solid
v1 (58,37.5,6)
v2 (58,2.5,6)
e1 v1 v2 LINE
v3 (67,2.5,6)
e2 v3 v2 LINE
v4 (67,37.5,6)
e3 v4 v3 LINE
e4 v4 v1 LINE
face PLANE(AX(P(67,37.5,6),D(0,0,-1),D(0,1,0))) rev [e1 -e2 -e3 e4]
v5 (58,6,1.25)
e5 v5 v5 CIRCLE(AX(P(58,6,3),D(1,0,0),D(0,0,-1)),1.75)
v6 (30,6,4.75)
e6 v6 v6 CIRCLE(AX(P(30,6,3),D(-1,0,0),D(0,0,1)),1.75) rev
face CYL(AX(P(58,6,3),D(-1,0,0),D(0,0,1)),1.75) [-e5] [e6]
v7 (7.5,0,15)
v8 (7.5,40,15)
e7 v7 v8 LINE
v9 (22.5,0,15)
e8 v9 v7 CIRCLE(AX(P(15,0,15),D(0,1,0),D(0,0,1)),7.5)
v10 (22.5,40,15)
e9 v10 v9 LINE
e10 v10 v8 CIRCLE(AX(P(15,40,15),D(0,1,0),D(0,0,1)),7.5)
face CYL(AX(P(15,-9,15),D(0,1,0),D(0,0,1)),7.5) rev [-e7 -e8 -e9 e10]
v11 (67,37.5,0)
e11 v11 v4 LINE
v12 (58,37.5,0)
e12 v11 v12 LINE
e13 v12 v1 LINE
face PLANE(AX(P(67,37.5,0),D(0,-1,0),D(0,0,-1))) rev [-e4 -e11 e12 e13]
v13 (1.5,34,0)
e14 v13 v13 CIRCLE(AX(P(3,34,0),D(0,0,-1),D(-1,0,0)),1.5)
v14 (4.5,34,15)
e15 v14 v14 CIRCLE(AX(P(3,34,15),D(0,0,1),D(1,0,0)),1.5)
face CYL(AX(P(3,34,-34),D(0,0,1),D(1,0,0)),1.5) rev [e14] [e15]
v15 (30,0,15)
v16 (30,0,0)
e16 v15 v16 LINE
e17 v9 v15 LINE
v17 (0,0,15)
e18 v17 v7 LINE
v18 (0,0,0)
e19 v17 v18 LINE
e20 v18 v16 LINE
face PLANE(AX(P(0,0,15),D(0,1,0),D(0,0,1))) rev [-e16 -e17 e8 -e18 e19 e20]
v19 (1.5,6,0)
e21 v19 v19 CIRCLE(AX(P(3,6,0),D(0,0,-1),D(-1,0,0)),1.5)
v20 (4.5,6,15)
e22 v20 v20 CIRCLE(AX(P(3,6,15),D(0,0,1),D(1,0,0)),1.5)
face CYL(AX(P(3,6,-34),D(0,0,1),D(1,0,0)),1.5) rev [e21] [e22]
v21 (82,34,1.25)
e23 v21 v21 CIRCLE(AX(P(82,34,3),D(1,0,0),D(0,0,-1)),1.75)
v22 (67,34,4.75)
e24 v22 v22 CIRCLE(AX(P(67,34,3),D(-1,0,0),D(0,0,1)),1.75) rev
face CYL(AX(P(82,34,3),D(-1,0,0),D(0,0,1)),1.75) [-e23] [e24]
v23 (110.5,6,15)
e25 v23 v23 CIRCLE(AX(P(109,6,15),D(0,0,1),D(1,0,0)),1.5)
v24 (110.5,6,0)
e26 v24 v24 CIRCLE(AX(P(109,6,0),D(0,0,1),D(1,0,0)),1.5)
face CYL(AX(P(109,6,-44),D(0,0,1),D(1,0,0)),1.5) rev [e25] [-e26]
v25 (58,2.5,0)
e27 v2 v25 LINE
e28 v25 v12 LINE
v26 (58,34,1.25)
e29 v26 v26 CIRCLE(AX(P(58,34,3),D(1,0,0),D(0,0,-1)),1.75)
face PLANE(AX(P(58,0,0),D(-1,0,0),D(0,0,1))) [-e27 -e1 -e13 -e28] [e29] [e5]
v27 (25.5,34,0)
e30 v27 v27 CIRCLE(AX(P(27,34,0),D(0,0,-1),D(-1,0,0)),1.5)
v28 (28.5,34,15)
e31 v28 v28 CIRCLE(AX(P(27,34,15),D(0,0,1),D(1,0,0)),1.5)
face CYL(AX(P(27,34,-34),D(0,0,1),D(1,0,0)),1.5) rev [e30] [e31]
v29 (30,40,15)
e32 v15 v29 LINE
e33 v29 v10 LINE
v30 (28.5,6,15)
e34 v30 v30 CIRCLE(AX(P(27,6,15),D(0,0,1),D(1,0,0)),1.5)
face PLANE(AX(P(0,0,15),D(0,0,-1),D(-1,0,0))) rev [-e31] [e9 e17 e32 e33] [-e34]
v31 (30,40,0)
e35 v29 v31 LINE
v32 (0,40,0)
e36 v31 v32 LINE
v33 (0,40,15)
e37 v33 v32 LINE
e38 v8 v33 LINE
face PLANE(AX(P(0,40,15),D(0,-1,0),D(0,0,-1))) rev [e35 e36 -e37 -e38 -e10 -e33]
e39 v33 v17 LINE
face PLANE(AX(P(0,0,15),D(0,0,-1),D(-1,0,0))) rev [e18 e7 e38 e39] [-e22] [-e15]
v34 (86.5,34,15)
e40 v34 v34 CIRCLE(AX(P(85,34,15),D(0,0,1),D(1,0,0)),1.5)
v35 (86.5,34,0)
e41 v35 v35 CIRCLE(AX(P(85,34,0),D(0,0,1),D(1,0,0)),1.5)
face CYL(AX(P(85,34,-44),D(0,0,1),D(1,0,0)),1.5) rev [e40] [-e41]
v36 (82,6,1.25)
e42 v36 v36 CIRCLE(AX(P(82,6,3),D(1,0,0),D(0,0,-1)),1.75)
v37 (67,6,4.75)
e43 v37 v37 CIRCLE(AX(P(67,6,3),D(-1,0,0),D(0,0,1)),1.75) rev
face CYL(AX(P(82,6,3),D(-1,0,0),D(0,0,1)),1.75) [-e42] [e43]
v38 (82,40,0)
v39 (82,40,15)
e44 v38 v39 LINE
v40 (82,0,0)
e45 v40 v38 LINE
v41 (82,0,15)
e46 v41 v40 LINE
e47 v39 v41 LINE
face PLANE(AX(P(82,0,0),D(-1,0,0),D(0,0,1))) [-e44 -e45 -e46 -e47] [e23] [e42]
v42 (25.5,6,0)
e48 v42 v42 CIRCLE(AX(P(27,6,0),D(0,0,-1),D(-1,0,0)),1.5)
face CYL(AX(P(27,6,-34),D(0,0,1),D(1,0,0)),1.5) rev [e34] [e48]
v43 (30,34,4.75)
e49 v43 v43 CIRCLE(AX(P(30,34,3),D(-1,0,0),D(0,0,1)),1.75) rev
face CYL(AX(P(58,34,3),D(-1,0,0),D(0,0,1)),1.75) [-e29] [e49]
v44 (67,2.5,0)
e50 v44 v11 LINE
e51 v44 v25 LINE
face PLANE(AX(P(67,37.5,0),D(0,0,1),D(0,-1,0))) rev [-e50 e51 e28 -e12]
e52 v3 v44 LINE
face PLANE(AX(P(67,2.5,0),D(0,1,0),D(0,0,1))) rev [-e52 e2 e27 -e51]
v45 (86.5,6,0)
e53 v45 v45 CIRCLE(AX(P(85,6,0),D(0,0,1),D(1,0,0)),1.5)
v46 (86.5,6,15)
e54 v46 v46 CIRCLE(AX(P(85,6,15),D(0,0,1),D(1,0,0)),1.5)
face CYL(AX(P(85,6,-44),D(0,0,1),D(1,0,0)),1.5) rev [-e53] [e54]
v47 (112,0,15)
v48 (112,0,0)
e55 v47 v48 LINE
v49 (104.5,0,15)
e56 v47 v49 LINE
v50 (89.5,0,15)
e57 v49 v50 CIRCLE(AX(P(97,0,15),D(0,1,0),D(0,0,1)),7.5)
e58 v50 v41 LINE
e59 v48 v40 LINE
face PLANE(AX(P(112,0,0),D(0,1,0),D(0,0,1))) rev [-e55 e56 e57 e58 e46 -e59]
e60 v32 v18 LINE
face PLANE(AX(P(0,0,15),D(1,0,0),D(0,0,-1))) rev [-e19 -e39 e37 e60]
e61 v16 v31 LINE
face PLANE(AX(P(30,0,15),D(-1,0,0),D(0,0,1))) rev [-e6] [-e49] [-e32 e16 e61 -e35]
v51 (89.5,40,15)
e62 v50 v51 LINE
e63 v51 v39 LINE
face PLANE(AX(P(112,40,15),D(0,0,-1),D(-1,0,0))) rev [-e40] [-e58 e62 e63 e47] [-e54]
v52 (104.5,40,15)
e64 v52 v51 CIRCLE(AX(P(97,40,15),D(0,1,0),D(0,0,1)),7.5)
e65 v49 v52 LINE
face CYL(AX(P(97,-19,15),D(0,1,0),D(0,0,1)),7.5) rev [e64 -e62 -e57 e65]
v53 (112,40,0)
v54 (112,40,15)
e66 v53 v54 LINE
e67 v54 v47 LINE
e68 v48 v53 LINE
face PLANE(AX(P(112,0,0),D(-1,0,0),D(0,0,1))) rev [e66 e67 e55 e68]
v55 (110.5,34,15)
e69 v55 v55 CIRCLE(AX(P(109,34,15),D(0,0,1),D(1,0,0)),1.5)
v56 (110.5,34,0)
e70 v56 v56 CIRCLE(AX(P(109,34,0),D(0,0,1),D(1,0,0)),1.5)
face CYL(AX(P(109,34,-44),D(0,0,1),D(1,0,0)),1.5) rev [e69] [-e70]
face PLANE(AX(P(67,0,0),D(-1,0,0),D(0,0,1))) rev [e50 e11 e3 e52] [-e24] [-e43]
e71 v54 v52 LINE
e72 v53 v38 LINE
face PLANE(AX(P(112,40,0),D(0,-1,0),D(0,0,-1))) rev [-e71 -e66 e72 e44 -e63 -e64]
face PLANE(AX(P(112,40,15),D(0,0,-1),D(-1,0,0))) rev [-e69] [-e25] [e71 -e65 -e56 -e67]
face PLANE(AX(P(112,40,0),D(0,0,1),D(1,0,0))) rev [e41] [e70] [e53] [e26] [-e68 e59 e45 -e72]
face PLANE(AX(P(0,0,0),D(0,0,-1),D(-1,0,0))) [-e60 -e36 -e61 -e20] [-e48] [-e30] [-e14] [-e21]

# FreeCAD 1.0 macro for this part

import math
import FreeCAD as App
import Part
import Sketcher
from FreeCAD import Vector
Q = App.Units.Quantity

doc = App.newDocument("Part")
body = doc.addObject("PartDesign::Body", "Body")

sketch1 = body.newObject("Sketcher::SketchObject", "Sketch")
sketch1.AttachmentSupport = (doc.getObject("XY_Plane"), [""])
sketch1.MapMode = "FlatFace"
sketch1.addGeometry(Part.LineSegment(Vector(0, 40, 0), Vector(0, 0, 0)), False)
sketch1.addGeometry(Part.LineSegment(Vector(0, 0, 0), Vector(30, 0, 0)), False)
sketch1.addGeometry(Part.LineSegment(Vector(30, 0, 0), Vector(30, 40, 0)), False)
sketch1.addGeometry(Part.LineSegment(Vector(30, 40, 0), Vector(0, 40, 0)), False)
sketch1.addConstraint(Sketcher.Constraint("Coincident", 0, 2, 1, 1))
sketch1.addConstraint(Sketcher.Constraint("Coincident", 1, 2, 2, 1))
sketch1.addConstraint(Sketcher.Constraint("Coincident", 2, 2, 3, 1))
sketch1.addConstraint(Sketcher.Constraint("Coincident", 3, 2, 0, 1))
sketch1.addConstraint(Sketcher.Constraint("Vertical", 0))
sketch1.addConstraint(Sketcher.Constraint("Horizontal", 1))
sketch1.addConstraint(Sketcher.Constraint("Vertical", 2))
sketch1.addConstraint(Sketcher.Constraint("Horizontal", 3))
sketch1.addConstraint(Sketcher.Constraint("Coincident", 0, 2, -1, 1))
sketch1.addConstraint(Sketcher.Constraint("DistanceX", 1, 1, 1, 2, Q("30 mm")))
sketch1.addConstraint(Sketcher.Constraint("DistanceY", 0, 2, 0, 1, Q("40 mm")))
pad1 = body.newObject("PartDesign::Pad", "Pad")
pad1.Profile = sketch1
pad1.Length = 15

sketch2 = body.newObject("Sketcher::SketchObject", "Sketch001")
sketch2.AttachmentSupport = (doc.getObject("XZ_Plane"), [""])
sketch2.MapMode = "FlatFace"
sketch2.AttachmentOffset = App.Placement(Vector(0, 0, -40), App.Rotation())
sketch2.addGeometry(Part.LineSegment(Vector(8, 15, 0), Vector(22, 15, 0)), False)
sketch2.addGeometry(Part.ArcOfCircle(Part.Circle(Vector(15, 15, 0), Vector(0, 0, 1), 8), math.radians(180), math.radians(360)), False)
sketch2.addConstraint(Sketcher.Constraint("Coincident", 0, 1, 1, 1))
sketch2.addConstraint(Sketcher.Constraint("Coincident", 1, 2, 0, 2))
sketch2.addConstraint(Sketcher.Constraint("Horizontal", 0))
sketch2.addConstraint(Sketcher.Constraint("Horizontal", 1, 3, 0, 1))
sketch2.addConstraint(Sketcher.Constraint("Radius", 1, Q("7.5 mm")))
sketch2.addConstraint(Sketcher.Constraint("DistanceX", -1, 1, 1, 3, Q("15 mm")))
sketch2.addConstraint(Sketcher.Constraint("DistanceY", -1, 1, 1, 3, Q("15 mm")))
pocket1 = body.newObject("PartDesign::Pocket", "Pocket")
pocket1.Profile = sketch2
pocket1.Length = 49
pocket1.Reversed = True

sketch3 = body.newObject("Sketcher::SketchObject", "Sketch002")
sketch3.AttachmentSupport = (doc.getObject("XY_Plane"), [""])
sketch3.MapMode = "FlatFace"
sketch3.AttachmentOffset = App.Placement(Vector(0, 0, 15), App.Rotation())
sketch3.addGeometry(Part.Circle(Vector(3, 34, 0), Vector(0, 0, 1), 1.5), False)
sketch3.addGeometry(Part.Circle(Vector(3, 6, 0), Vector(0, 0, 1), 1.5), False)
sketch3.addGeometry(Part.Circle(Vector(27, 34, 0), Vector(0, 0, 1), 1.5), False)
sketch3.addGeometry(Part.Circle(Vector(27, 6, 0), Vector(0, 0, 1), 1.5), False)
sketch3.addConstraint(Sketcher.Constraint("Equal", 0, 1))
sketch3.addConstraint(Sketcher.Constraint("Equal", 1, 2))
sketch3.addConstraint(Sketcher.Constraint("Equal", 2, 3))
sketch3.addConstraint(Sketcher.Constraint("Horizontal", 0, 3, 2, 3))
sketch3.addConstraint(Sketcher.Constraint("Horizontal", 1, 3, 3, 3))
sketch3.addConstraint(Sketcher.Constraint("Vertical", 0, 3, 1, 3))
sketch3.addConstraint(Sketcher.Constraint("Vertical", 2, 3, 3, 3))
sketch3.addConstraint(Sketcher.Constraint("Diameter", 0, Q("3 mm")))
sketch3.addConstraint(Sketcher.Constraint("DistanceX", -1, 1, 0, 3, Q("3 mm")))
sketch3.addConstraint(Sketcher.Constraint("DistanceY", -1, 1, 0, 3, Q("34 mm")))
sketch3.addConstraint(Sketcher.Constraint("DistanceY", -1, 1, 1, 3, Q("6 mm")))
sketch3.addConstraint(Sketcher.Constraint("DistanceX", -1, 1, 2, 3, Q("27 mm")))
pocket2 = body.newObject("PartDesign::Pocket", "Pocket001")
pocket2.Profile = sketch3
pocket2.Length = 49

sketch4 = body.newObject("Sketcher::SketchObject", "Sketch003")
sketch4.AttachmentSupport = (doc.getObject("YZ_Plane"), [""])
sketch4.MapMode = "FlatFace"
sketch4.AttachmentOffset = App.Placement(Vector(0, 0, 30), App.Rotation())
sketch4.addGeometry(Part.Circle(Vector(34, 3, 0), Vector(0, 0, 1), 1.8), False)
sketch4.addGeometry(Part.Circle(Vector(6, 3, 0), Vector(0, 0, 1), 1.8), False)
sketch4.addConstraint(Sketcher.Constraint("Equal", 0, 1))
sketch4.addConstraint(Sketcher.Constraint("Horizontal", 0, 3, 1, 3))
sketch4.addConstraint(Sketcher.Constraint("Diameter", 0, Q("3.5 mm")))
sketch4.addConstraint(Sketcher.Constraint("DistanceX", -1, 1, 0, 3, Q("34 mm")))
sketch4.addConstraint(Sketcher.Constraint("DistanceY", -1, 1, 0, 3, Q("3 mm")))
sketch4.addConstraint(Sketcher.Constraint("DistanceX", -1, 1, 1, 3, Q("6 mm")))
pad2 = body.newObject("PartDesign::Pad", "Pad001")
pad2.Profile = sketch4
pad2.Length = 28

sketch5 = body.newObject("Sketcher::SketchObject", "Sketch004")
sketch5.AttachmentSupport = (doc.getObject("YZ_Plane"), [""])
sketch5.MapMode = "FlatFace"
sketch5.AttachmentOffset = App.Placement(Vector(0, 0, 58), App.Rotation())
sketch5.addGeometry(Part.LineSegment(Vector(38, 6, 0), Vector(2, 6, 0)), False)
sketch5.addGeometry(Part.LineSegment(Vector(2, 6, 0), Vector(2, 0, 0)), False)
sketch5.addGeometry(Part.LineSegment(Vector(2, 0, 0), Vector(38, 0, 0)), False)
sketch5.addGeometry(Part.LineSegment(Vector(38, 0, 0), Vector(38, 6, 0)), False)
sketch5.addConstraint(Sketcher.Constraint("Coincident", 0, 2, 1, 1))
sketch5.addConstraint(Sketcher.Constraint("Coincident", 1, 2, 2, 1))
sketch5.addConstraint(Sketcher.Constraint("Coincident", 2, 2, 3, 1))
sketch5.addConstraint(Sketcher.Constraint("Coincident", 3, 2, 0, 1))
sketch5.addConstraint(Sketcher.Constraint("Horizontal", 0))
sketch5.addConstraint(Sketcher.Constraint("Vertical", 1))
sketch5.addConstraint(Sketcher.Constraint("Horizontal", 2))
sketch5.addConstraint(Sketcher.Constraint("Vertical", 3))
sketch5.addConstraint(Sketcher.Constraint("PointOnObject", 1, 2, -1))
sketch5.addConstraint(Sketcher.Constraint("DistanceX", 0, 2, 0, 1, Q("35 mm")))
sketch5.addConstraint(Sketcher.Constraint("DistanceY", 1, 2, 1, 1, Q("6 mm")))
sketch5.addConstraint(Sketcher.Constraint("DistanceX", -1, 1, 0, 2, Q("2.5 mm")))
pad3 = body.newObject("PartDesign::Pad", "Pad002")
pad3.Profile = sketch5
pad3.Length = 9

sketch6 = body.newObject("Sketcher::SketchObject", "Sketch005")
sketch6.AttachmentSupport = (doc.getObject("YZ_Plane"), [""])
sketch6.MapMode = "FlatFace"
sketch6.AttachmentOffset = App.Placement(Vector(0, 0, 67), App.Rotation())
sketch6.addGeometry(Part.Circle(Vector(34, 3, 0), Vector(0, 0, 1), 1.8), False)
sketch6.addGeometry(Part.Circle(Vector(6, 3, 0), Vector(0, 0, 1), 1.8), False)
sketch6.addConstraint(Sketcher.Constraint("Equal", 0, 1))
sketch6.addConstraint(Sketcher.Constraint("Horizontal", 0, 3, 1, 3))
sketch6.addConstraint(Sketcher.Constraint("Diameter", 0, Q("3.5 mm")))
sketch6.addConstraint(Sketcher.Constraint("DistanceX", -1, 1, 0, 3, Q("34 mm")))
sketch6.addConstraint(Sketcher.Constraint("DistanceY", -1, 1, 0, 3, Q("3 mm")))
sketch6.addConstraint(Sketcher.Constraint("DistanceX", -1, 1, 1, 3, Q("6 mm")))
pad4 = body.newObject("PartDesign::Pad", "Pad003")
pad4.Profile = sketch6
pad4.Length = 15

sketch7 = body.newObject("Sketcher::SketchObject", "Sketch006")
sketch7.AttachmentSupport = (doc.getObject("YZ_Plane"), [""])
sketch7.MapMode = "FlatFace"
sketch7.AttachmentOffset = App.Placement(Vector(0, 0, 82), App.Rotation())
sketch7.addGeometry(Part.LineSegment(Vector(40, 15, 0), Vector(0, 15, 0)), False)
sketch7.addGeometry(Part.LineSegment(Vector(0, 15, 0), Vector(0, 0, 0)), False)
sketch7.addGeometry(Part.LineSegment(Vector(0, 0, 0), Vector(40, 0, 0)), False)
sketch7.addGeometry(Part.LineSegment(Vector(40, 0, 0), Vector(40, 15, 0)), False)
sketch7.addConstraint(Sketcher.Constraint("Coincident", 0, 2, 1, 1))
sketch7.addConstraint(Sketcher.Constraint("Coincident", 1, 2, 2, 1))
sketch7.addConstraint(Sketcher.Constraint("Coincident", 2, 2, 3, 1))
sketch7.addConstraint(Sketcher.Constraint("Coincident", 3, 2, 0, 1))
sketch7.addConstraint(Sketcher.Constraint("Horizontal", 0))
sketch7.addConstraint(Sketcher.Constraint("Vertical", 1))
sketch7.addConstraint(Sketcher.Constraint("Horizontal", 2))
sketch7.addConstraint(Sketcher.Constraint("Vertical", 3))
sketch7.addConstraint(Sketcher.Constraint("Coincident", 1, 2, -1, 1))
sketch7.addConstraint(Sketcher.Constraint("DistanceX", 0, 2, 0, 1, Q("40 mm")))
sketch7.addConstraint(Sketcher.Constraint("DistanceY", 1, 2, 1, 1, Q("15 mm")))
pad5 = body.newObject("PartDesign::Pad", "Pad004")
pad5.Profile = sketch7
pad5.Length = 30

sketch8 = body.newObject("Sketcher::SketchObject", "Sketch007")
sketch8.AttachmentSupport = (doc.getObject("XZ_Plane"), [""])
sketch8.MapMode = "FlatFace"
sketch8.AttachmentOffset = App.Placement(Vector(0, 0, -40), App.Rotation())
sketch8.addGeometry(Part.LineSegment(Vector(90, 15, 0), Vector(104, 15, 0)), False)
sketch8.addGeometry(Part.ArcOfCircle(Part.Circle(Vector(97, 15, 0), Vector(0, 0, 1), 8), math.radians(180), math.radians(360)), False)
sketch8.addConstraint(Sketcher.Constraint("Coincident", 0, 1, 1, 1))
sketch8.addConstraint(Sketcher.Constraint("Coincident", 1, 2, 0, 2))
sketch8.addConstraint(Sketcher.Constraint("Horizontal", 0))
sketch8.addConstraint(Sketcher.Constraint("Horizontal", 1, 3, 0, 1))
sketch8.addConstraint(Sketcher.Constraint("Radius", 1, Q("7.5 mm")))
sketch8.addConstraint(Sketcher.Constraint("DistanceX", -1, 1, 1, 3, Q("97 mm")))
sketch8.addConstraint(Sketcher.Constraint("DistanceY", -1, 1, 1, 3, Q("15 mm")))
pocket3 = body.newObject("PartDesign::Pocket", "Pocket002")
pocket3.Profile = sketch8
pocket3.Length = 59
pocket3.Reversed = True

sketch9 = body.newObject("Sketcher::SketchObject", "Sketch008")
sketch9.AttachmentSupport = (doc.getObject("XY_Plane"), [""])
sketch9.MapMode = "FlatFace"
sketch9.AttachmentOffset = App.Placement(Vector(0, 0, 15), App.Rotation())
sketch9.addGeometry(Part.Circle(Vector(85, 34, 0), Vector(0, 0, 1), 1.5), False)
sketch9.addGeometry(Part.Circle(Vector(109, 34, 0), Vector(0, 0, 1), 1.5), False)
sketch9.addGeometry(Part.Circle(Vector(109, 6, 0), Vector(0, 0, 1), 1.5), False)
sketch9.addGeometry(Part.Circle(Vector(85, 6, 0), Vector(0, 0, 1), 1.5), False)
sketch9.addConstraint(Sketcher.Constraint("Equal", 0, 1))
sketch9.addConstraint(Sketcher.Constraint("Equal", 1, 2))
sketch9.addConstraint(Sketcher.Constraint("Equal", 2, 3))
sketch9.addConstraint(Sketcher.Constraint("Horizontal", 0, 3, 1, 3))
sketch9.addConstraint(Sketcher.Constraint("Horizontal", 2, 3, 3, 3))
sketch9.addConstraint(Sketcher.Constraint("Vertical", 1, 3, 2, 3))
sketch9.addConstraint(Sketcher.Constraint("Vertical", 0, 3, 3, 3))
sketch9.addConstraint(Sketcher.Constraint("Diameter", 0, Q("3 mm")))
sketch9.addConstraint(Sketcher.Constraint("DistanceX", -1, 1, 0, 3, Q("85 mm")))
sketch9.addConstraint(Sketcher.Constraint("DistanceY", -1, 1, 0, 3, Q("34 mm")))
sketch9.addConstraint(Sketcher.Constraint("DistanceX", -1, 1, 1, 3, Q("109 mm")))
sketch9.addConstraint(Sketcher.Constraint("DistanceY", -1, 1, 2, 3, Q("6 mm")))
pocket4 = body.newObject("PartDesign::Pocket", "Pocket003")
pocket4.Profile = sketch9
pocket4.Length = 59

doc.recompute()
